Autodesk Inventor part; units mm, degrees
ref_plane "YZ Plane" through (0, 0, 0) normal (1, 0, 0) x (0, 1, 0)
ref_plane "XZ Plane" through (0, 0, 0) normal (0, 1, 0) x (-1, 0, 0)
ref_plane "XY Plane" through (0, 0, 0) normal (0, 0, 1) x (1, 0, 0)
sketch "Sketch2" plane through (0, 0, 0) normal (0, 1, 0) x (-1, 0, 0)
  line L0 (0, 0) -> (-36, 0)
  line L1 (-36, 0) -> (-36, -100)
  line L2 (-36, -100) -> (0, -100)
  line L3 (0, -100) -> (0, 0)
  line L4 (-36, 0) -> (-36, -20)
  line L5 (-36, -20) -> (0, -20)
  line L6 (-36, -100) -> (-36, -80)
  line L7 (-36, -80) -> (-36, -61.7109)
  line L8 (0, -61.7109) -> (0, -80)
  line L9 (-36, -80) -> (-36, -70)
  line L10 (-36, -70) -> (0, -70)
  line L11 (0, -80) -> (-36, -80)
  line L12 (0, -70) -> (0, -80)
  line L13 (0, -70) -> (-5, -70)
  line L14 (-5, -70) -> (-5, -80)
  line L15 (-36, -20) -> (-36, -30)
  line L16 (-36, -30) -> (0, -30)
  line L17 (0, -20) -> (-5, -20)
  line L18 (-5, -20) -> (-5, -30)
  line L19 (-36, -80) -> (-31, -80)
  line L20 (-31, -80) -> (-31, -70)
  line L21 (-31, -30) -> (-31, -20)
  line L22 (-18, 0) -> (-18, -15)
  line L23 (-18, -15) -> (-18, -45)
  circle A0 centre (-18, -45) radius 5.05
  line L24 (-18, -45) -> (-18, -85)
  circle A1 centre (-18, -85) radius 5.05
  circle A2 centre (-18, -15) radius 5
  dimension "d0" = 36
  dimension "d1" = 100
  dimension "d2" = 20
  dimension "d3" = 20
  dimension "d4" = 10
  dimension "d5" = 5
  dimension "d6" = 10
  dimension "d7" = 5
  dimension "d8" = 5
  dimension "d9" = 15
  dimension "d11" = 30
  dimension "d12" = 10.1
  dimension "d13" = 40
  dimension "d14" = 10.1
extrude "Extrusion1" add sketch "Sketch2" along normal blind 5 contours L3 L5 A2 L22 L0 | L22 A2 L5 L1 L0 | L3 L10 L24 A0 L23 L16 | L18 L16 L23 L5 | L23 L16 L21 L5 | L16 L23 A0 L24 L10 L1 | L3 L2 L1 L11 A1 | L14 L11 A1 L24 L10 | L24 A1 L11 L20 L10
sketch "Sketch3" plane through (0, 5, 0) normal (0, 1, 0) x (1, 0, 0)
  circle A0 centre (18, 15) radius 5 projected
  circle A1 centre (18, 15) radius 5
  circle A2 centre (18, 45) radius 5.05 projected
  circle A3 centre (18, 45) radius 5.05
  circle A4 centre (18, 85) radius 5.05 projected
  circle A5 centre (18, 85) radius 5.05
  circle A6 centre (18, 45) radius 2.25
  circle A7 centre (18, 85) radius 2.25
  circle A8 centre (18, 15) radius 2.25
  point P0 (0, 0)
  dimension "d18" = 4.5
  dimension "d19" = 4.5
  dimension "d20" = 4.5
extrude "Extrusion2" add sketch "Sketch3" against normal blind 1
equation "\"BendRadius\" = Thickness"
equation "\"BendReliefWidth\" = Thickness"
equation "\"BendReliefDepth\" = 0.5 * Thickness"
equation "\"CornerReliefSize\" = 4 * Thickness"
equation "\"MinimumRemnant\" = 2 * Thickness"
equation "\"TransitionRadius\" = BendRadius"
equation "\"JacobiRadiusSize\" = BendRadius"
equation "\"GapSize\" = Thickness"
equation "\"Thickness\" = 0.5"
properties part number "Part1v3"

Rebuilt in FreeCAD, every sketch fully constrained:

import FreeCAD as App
import Part
import Sketcher
from FreeCAD import Vector
Q = App.Units.Quantity


def add_polygon(sketch, points):
    """Adds a closed chain of lines whose ends are joined by coincident constraints."""
    first, n = sketch.GeometryCount, len(points)
    for a, b in zip(points, points[1:] + points[:1]):
        sketch.addGeometry(Part.LineSegment(App.Vector(*a, 0), App.Vector(*b, 0)), False)
    for i in range(n):
        sketch.addConstraint(Sketcher.Constraint("Coincident", first + i, 2, first + (i + 1) % n, 1))

doc = App.newDocument("Part")
body = doc.addObject("PartDesign::Body", "Body")

sketch1 = body.newObject("Sketcher::SketchObject", "Sketch")
sketch1.AttachmentSupport = (doc.getObject("XZ_Plane"), [""])
sketch1.MapMode = "FlatFace"
add_polygon(sketch1, [(0, -20), (0, 0), (36, 0), (36, -20), (31, -20), (31, -30), (36, -30), (36, -70), (31, -70), (31, -80), (36, -80), (36, -100), (0, -100), (0, -80), (5, -80), (5, -70), (0, -70), (0, -30), (5, -30), (5, -20)])
sketch1.addGeometry(Part.Circle(Vector(18, -15, 0), Vector(0, 0, 1), 5), False)
sketch1.addGeometry(Part.Circle(Vector(18, -45, 0), Vector(0, 0, 1), 5), False)
sketch1.addGeometry(Part.Circle(Vector(18, -85, 0), Vector(0, 0, 1), 5), False)
sketch1.addConstraint(Sketcher.Constraint("Vertical", 0))
sketch1.addConstraint(Sketcher.Constraint("Horizontal", 1))
sketch1.addConstraint(Sketcher.Constraint("Vertical", 2))
sketch1.addConstraint(Sketcher.Constraint("Horizontal", 3))
sketch1.addConstraint(Sketcher.Constraint("Vertical", 4))
sketch1.addConstraint(Sketcher.Constraint("Horizontal", 5))
sketch1.addConstraint(Sketcher.Constraint("Vertical", 6))
sketch1.addConstraint(Sketcher.Constraint("Horizontal", 7))
sketch1.addConstraint(Sketcher.Constraint("Vertical", 8))
sketch1.addConstraint(Sketcher.Constraint("Horizontal", 9))
sketch1.addConstraint(Sketcher.Constraint("Vertical", 10))
sketch1.addConstraint(Sketcher.Constraint("Horizontal", 11))
sketch1.addConstraint(Sketcher.Constraint("Vertical", 12))
sketch1.addConstraint(Sketcher.Constraint("Horizontal", 13))
sketch1.addConstraint(Sketcher.Constraint("Vertical", 14))
sketch1.addConstraint(Sketcher.Constraint("Horizontal", 15))
sketch1.addConstraint(Sketcher.Constraint("Vertical", 16))
sketch1.addConstraint(Sketcher.Constraint("Horizontal", 17))
sketch1.addConstraint(Sketcher.Constraint("Vertical", 18))
sketch1.addConstraint(Sketcher.Constraint("Horizontal", 19))
sketch1.addConstraint(Sketcher.Constraint("Coincident", 0, 2, -1, 1))
sketch1.addConstraint(Sketcher.Constraint("Equal", 21, 22))
sketch1.addConstraint(Sketcher.Constraint("PointOnObject", 11, 2, -2))
sketch1.addConstraint(Sketcher.Constraint("PointOnObject", 15, 2, -2))
sketch1.addConstraint(Sketcher.Constraint("Horizontal", 9, 2, 12, 2))
sketch1.addConstraint(Sketcher.Constraint("Horizontal", 7, 2, 14, 2))
sketch1.addConstraint(Sketcher.Constraint("Horizontal", 5, 2, 16, 2))
sketch1.addConstraint(Sketcher.Constraint("Horizontal", 3, 2, 18, 2))
sketch1.addConstraint(Sketcher.Constraint("Vertical", 20, 3, 21, 3))
sketch1.addConstraint(Sketcher.Constraint("Vertical", 21, 3, 22, 3))
sketch1.addConstraint(Sketcher.Constraint("Vertical", 2, 2, 5, 2))
sketch1.addConstraint(Sketcher.Constraint("Vertical", 4, 2, 7, 2))
sketch1.addConstraint(Sketcher.Constraint("Vertical", 6, 2, 9, 2))
sketch1.addConstraint(Sketcher.Constraint("Vertical", 14, 2, 17, 2))
sketch1.addConstraint(Sketcher.Constraint("Equal", 9, 13))
sketch1.addConstraint(Sketcher.Constraint("Equal", 4, 8))
sketch1.addConstraint(Sketcher.Constraint("Equal", 2, 10))
sketch1.addConstraint(Sketcher.Constraint("Diameter", 20, Q("10 mm")))
sketch1.addConstraint(Sketcher.Constraint("Diameter", 21, Q("10.1 mm")))
sketch1.addConstraint(Sketcher.Constraint("DistanceX", 1, 1, 1, 2, Q("36 mm")))
sketch1.addConstraint(Sketcher.Constraint("DistanceX", 3, 2, 3, 1, Q("5 mm")))
sketch1.addConstraint(Sketcher.Constraint("DistanceY", 0, 1, 0, 2, Q("20 mm")))
sketch1.addConstraint(Sketcher.Constraint("DistanceY", 4, 2, 4, 1, Q("10 mm")))
sketch1.addConstraint(Sketcher.Constraint("DistanceY", 6, 2, 6, 1, Q("40 mm")))
sketch1.addConstraint(Sketcher.Constraint("DistanceY", 20, 3, -1, 1, Q("15 mm")))
sketch1.addConstraint(Sketcher.Constraint("DistanceY", 21, 3, 20, 3, Q("30 mm")))
sketch1.addConstraint(Sketcher.Constraint("DistanceY", 22, 3, 21, 3, Q("40 mm")))
sketch1.addConstraint(Sketcher.Constraint("DistanceX", -1, 1, 20, 3, Q("18 mm")))
pad1 = body.newObject("PartDesign::Pad", "Pad")
pad1.Profile = sketch1
pad1.Length = 5
pad1.Reversed = True

sketch2 = body.newObject("Sketcher::SketchObject", "Sketch001")
sketch2.AttachmentSupport = (doc.getObject("XZ_Plane"), [""])
sketch2.MapMode = "FlatFace"
sketch2.AttachmentOffset = App.Placement(Vector(0, 0, -5), App.Rotation())
sketch2.addGeometry(Part.Circle(Vector(18, -15, 0), Vector(0, 0, 1), 5), False)
sketch2.addGeometry(Part.Circle(Vector(18, -15, 0), Vector(0, 0, 1), 2.2), False)
sketch2.addGeometry(Part.Circle(Vector(18, -45, 0), Vector(0, 0, 1), 5), False)
sketch2.addGeometry(Part.Circle(Vector(18, -45, 0), Vector(0, 0, 1), 2.2), False)
sketch2.addGeometry(Part.Circle(Vector(18, -85, 0), Vector(0, 0, 1), 5), False)
sketch2.addGeometry(Part.Circle(Vector(18, -85, 0), Vector(0, 0, 1), 2.2), False)
sketch2.addConstraint(Sketcher.Constraint("Coincident", 1, 3, 0, 3))
sketch2.addConstraint(Sketcher.Constraint("Coincident", 3, 3, 2, 3))
sketch2.addConstraint(Sketcher.Constraint("Coincident", 5, 3, 4, 3))
sketch2.addConstraint(Sketcher.Constraint("Equal", 1, 3))
sketch2.addConstraint(Sketcher.Constraint("Equal", 2, 4))
sketch2.addConstraint(Sketcher.Constraint("Equal", 3, 5))
sketch2.addConstraint(Sketcher.Constraint("Vertical", 1, 3, 2, 3))
sketch2.addConstraint(Sketcher.Constraint("Vertical", 3, 3, 4, 3))
sketch2.addConstraint(Sketcher.Constraint("Diameter", 1, Q("4.5 mm")))
sketch2.addConstraint(Sketcher.Constraint("Diameter", 0, Q("10 mm")))
sketch2.addConstraint(Sketcher.Constraint("Diameter", 2, Q("10.1 mm")))
sketch2.addConstraint(Sketcher.Constraint("DistanceX", -1, 1, 0, 3, Q("18 mm")))
sketch2.addConstraint(Sketcher.Constraint("DistanceY", 0, 3, -1, 1, Q("15 mm")))
sketch2.addConstraint(Sketcher.Constraint("DistanceY", 2, 3, -1, 1, Q("45 mm")))
sketch2.addConstraint(Sketcher.Constraint("DistanceY", 4, 3, -1, 1, Q("85 mm")))
pad2 = body.newObject("PartDesign::Pad", "Pad001")
pad2.Profile = sketch2
pad2.Length = 1

doc.recompute()
